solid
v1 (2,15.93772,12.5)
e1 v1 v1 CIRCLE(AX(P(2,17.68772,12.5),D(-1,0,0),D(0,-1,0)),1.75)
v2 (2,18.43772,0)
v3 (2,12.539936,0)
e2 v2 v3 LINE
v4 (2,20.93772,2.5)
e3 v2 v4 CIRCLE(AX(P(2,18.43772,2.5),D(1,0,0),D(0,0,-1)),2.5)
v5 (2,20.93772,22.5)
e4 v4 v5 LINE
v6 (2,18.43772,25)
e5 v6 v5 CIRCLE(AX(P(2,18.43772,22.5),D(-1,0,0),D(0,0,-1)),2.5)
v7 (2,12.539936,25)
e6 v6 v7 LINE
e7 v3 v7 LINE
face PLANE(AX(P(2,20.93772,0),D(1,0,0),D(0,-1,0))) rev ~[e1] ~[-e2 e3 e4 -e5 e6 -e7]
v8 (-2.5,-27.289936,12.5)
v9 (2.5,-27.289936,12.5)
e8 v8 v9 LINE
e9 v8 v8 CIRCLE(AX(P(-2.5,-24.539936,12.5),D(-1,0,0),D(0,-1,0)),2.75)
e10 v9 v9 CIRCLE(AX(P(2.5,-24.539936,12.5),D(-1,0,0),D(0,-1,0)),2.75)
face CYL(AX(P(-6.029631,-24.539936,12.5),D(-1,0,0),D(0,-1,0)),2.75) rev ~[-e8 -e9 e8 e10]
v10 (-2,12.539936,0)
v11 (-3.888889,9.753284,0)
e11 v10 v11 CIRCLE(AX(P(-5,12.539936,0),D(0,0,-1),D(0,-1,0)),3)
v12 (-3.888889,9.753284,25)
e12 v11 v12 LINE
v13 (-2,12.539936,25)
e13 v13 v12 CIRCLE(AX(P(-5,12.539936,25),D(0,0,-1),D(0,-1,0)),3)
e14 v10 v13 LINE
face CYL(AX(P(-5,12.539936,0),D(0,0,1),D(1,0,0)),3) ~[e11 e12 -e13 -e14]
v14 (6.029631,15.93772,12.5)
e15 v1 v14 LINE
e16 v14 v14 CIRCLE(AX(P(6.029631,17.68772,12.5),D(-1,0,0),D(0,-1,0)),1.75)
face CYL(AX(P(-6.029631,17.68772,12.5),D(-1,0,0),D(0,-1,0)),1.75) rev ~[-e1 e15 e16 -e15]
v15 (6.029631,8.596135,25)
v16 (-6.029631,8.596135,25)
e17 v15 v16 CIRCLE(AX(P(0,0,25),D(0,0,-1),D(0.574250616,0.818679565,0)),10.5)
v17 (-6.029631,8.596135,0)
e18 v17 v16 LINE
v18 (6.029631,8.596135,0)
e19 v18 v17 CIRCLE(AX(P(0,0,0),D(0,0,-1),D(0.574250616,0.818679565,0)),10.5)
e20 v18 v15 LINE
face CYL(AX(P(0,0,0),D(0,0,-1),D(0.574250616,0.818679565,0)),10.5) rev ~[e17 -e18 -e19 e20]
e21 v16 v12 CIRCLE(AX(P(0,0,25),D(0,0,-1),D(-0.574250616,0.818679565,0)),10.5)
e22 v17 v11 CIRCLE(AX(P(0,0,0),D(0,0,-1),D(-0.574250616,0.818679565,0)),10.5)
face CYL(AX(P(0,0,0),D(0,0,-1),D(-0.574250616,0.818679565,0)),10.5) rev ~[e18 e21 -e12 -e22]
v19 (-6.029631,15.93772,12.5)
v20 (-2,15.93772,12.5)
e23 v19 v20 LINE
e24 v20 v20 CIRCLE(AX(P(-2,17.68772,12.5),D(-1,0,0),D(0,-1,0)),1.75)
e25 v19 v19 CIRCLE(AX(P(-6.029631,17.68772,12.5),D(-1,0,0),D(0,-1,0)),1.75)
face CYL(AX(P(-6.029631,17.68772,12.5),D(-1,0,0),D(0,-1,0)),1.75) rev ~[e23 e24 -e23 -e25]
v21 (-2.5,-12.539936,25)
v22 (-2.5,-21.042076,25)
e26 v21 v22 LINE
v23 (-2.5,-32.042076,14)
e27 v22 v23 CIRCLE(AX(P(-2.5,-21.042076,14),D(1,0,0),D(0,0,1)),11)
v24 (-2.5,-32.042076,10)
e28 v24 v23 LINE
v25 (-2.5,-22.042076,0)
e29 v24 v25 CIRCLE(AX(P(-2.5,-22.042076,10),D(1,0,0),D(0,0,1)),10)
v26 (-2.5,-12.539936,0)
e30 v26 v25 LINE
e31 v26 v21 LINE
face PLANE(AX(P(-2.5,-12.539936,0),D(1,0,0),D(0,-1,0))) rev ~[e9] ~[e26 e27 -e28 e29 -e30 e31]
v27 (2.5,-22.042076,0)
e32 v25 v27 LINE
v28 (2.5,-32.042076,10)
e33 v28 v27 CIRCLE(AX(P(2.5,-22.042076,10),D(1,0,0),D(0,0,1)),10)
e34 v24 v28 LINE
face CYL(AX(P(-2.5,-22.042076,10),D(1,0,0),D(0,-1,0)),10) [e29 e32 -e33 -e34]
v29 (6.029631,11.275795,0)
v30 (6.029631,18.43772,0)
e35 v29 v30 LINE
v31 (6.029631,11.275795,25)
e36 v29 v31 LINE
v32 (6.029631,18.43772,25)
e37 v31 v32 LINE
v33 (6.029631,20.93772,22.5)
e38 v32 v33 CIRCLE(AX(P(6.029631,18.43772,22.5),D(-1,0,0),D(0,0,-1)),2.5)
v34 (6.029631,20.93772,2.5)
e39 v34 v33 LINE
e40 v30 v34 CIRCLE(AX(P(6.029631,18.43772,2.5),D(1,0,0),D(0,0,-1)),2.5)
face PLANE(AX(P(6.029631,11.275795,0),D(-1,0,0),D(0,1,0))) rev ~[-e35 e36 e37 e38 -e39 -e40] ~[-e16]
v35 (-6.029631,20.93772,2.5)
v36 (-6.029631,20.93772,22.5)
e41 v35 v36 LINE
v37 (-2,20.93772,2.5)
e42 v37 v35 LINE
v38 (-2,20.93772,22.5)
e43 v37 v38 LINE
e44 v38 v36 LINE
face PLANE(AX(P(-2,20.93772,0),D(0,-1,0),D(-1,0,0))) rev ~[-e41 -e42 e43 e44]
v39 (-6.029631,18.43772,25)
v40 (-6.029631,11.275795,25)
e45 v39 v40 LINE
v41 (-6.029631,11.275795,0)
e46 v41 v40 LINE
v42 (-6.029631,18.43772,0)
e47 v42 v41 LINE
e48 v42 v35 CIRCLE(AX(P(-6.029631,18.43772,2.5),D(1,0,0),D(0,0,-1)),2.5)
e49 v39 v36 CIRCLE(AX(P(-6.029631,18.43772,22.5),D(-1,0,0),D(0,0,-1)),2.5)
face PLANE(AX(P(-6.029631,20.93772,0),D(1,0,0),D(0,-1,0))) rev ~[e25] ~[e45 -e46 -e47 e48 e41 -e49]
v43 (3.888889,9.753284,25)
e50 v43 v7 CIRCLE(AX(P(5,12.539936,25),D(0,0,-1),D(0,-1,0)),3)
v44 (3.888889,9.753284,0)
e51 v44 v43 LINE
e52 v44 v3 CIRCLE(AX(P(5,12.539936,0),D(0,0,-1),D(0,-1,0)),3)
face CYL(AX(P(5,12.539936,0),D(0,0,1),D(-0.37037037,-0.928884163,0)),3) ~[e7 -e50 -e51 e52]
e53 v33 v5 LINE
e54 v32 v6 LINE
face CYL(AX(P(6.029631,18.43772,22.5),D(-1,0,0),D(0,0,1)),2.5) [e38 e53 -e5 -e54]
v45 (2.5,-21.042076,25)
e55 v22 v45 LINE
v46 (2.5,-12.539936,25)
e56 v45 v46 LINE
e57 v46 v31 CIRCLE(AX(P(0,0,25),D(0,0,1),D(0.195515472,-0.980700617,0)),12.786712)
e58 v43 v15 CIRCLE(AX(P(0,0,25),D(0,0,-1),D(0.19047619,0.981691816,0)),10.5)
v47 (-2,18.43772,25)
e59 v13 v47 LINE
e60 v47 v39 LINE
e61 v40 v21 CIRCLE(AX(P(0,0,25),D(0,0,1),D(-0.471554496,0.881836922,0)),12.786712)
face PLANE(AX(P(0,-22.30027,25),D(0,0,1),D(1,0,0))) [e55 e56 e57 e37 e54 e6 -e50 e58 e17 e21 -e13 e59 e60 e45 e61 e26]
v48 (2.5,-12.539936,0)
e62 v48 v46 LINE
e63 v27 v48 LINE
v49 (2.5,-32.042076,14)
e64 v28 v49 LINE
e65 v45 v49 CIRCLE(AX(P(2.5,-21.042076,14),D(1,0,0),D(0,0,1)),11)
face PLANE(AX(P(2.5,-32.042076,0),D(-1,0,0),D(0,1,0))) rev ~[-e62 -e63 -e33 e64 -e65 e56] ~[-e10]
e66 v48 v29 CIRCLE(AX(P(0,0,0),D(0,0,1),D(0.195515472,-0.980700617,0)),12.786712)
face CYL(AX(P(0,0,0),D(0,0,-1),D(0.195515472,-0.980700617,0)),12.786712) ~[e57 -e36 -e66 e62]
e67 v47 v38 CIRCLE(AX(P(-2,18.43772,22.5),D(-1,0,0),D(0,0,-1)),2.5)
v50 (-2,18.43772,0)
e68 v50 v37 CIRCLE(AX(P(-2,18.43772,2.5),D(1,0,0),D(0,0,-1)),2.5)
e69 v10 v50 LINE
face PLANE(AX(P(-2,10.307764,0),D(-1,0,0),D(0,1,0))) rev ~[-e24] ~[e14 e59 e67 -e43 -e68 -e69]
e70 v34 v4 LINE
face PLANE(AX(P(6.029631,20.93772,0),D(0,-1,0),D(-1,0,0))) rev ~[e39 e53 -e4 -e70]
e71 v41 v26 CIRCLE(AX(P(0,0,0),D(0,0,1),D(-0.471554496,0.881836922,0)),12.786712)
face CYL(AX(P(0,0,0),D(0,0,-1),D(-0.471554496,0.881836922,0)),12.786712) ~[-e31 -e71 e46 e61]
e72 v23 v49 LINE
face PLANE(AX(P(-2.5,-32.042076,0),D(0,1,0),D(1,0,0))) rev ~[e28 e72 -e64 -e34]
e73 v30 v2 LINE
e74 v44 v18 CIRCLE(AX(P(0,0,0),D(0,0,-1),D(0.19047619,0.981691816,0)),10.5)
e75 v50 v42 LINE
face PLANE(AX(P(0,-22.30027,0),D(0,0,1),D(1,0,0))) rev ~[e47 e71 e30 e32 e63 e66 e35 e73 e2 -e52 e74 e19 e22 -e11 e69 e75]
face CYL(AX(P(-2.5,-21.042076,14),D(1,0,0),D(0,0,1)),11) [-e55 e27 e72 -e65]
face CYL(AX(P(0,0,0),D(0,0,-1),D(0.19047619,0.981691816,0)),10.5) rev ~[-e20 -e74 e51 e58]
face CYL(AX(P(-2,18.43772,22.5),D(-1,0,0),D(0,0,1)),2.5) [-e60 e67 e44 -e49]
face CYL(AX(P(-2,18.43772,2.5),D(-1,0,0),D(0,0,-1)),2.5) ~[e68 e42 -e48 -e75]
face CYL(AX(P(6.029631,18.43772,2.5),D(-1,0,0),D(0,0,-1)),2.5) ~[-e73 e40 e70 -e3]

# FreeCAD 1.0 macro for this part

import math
import FreeCAD as App
import Part
import Sketcher


def edges_at(feature, points):
    """Names of the edges that pass closest to the given points."""
    edges = feature.Shape.Edges
    near = lambda p: min(range(len(edges)), key=lambda i: edges[i].distToShape(Part.Vertex(*p))[0])
    return sorted({f"Edge{near(p) + 1}" for p in points})

doc = App.newDocument("Part")
body = doc.addObject("PartDesign::Body", "Body")

# Sketch on XY plane
sketch1 = body.newObject("Sketcher::SketchObject", "Sketch")
sketch1.AttachmentSupport = (doc.getObject("XY_Plane"), [""])
sketch1.MapMode = "FlatFace"
sketch1.addGeometry([
    Part.LineSegment(App.Vector(-2.5, -12.5, 0), App.Vector(-2.5, -32, 0)),  # 0
    Part.LineSegment(App.Vector(-2.5, -32, 0), App.Vector(2.5, -32, 0)),  # 1
    Part.LineSegment(App.Vector(2.5, -32, 0), App.Vector(2.5, -12.5, 0)),  # 2
    Part.ArcOfCircle(Part.Circle(App.Vector(0, 0, 0), App.Vector(0, 0, 1), 12.8), math.radians(-79), math.radians(62)),  # 3
    Part.LineSegment(App.Vector(6, 11.3, 0), App.Vector(6, 20.9, 0)),  # 4
    Part.LineSegment(App.Vector(6, 20.9, 0), App.Vector(2, 20.9, 0)),  # 5
    Part.LineSegment(App.Vector(2, 20.9, 0), App.Vector(2, 10.3, 0)),  # 6
    Part.ArcOfCircle(Part.Circle(App.Vector(0, 0, 0), App.Vector(0, 0, 1), 10.5), math.radians(55), math.radians(79)),  # 7
    Part.ArcOfCircle(Part.Circle(App.Vector(0, 0, 0), App.Vector(0, 0, 1), 10.5), math.radians(125), math.radians(415)),  # 8
    Part.ArcOfCircle(Part.Circle(App.Vector(0, 0, 0), App.Vector(0, 0, 1), 10.5), math.radians(101), math.radians(125)),  # 9
    Part.LineSegment(App.Vector(-2, 10.3, 0), App.Vector(-2, 20.9, 0)),  # 10
    Part.LineSegment(App.Vector(-2, 20.9, 0), App.Vector(-6, 20.9, 0)),  # 11
    Part.LineSegment(App.Vector(-6, 20.9, 0), App.Vector(-6, 11.3, 0)),  # 12
    Part.ArcOfCircle(Part.Circle(App.Vector(0, 0, 0), App.Vector(0, 0, 1), 12.8), math.radians(118), math.radians(259)),  # 13
], False)
sketch1.addConstraint([
    Sketcher.Constraint("Coincident", 0, 2, 1, 1),
    Sketcher.Constraint("Coincident", 1, 2, 2, 1),
    Sketcher.Constraint("Coincident", 2, 2, 3, 1),
    Sketcher.Constraint("Coincident", 3, 2, 4, 1),
    Sketcher.Constraint("Coincident", 4, 2, 5, 1),
    Sketcher.Constraint("Coincident", 5, 2, 6, 1),
    Sketcher.Constraint("Coincident", 6, 2, 7, 2),
    Sketcher.Constraint("Tangent", 7, 1, 8, 2),
    Sketcher.Constraint("Tangent", 8, 1, 9, 2),
    Sketcher.Constraint("Coincident", 9, 1, 10, 1),
    Sketcher.Constraint("Coincident", 10, 2, 11, 1),
    Sketcher.Constraint("Coincident", 11, 2, 12, 1),
    Sketcher.Constraint("Coincident", 12, 2, 13, 1),
    Sketcher.Constraint("Coincident", 13, 2, 0, 1),
    Sketcher.Constraint("Vertical", 0),
    Sketcher.Constraint("Horizontal", 1),
    Sketcher.Constraint("Vertical", 2),
    Sketcher.Constraint("Vertical", 4),
    Sketcher.Constraint("Horizontal", 5),
    Sketcher.Constraint("Vertical", 6),
    Sketcher.Constraint("Vertical", 10),
    Sketcher.Constraint("Horizontal", 11),
    Sketcher.Constraint("Vertical", 12),
    Sketcher.Constraint("Coincident", 3, 3, -1, 1),
    Sketcher.Constraint("Coincident", 7, 3, -1, 1),
    Sketcher.Constraint("Coincident", 9, 3, -1, 1),
    Sketcher.Constraint("Coincident", 13, 3, -1, 1),
    Sketcher.Constraint("Equal", 3, 13),
    Sketcher.Constraint("Symmetric", 5, 2, 10, 2, -2),
    Sketcher.Constraint("Horizontal", 7, 1, 8, 1),
    Sketcher.Constraint("Horizontal", 3, 2, 12, 2),
    Sketcher.Constraint("Horizontal", 2, 2, 13, 2),
    Sketcher.Constraint("Vertical", 4, 2, 7, 1),
    Sketcher.Constraint("Radius", 7, 10.5),
    Sketcher.Constraint("DistanceX", 1, 1, 1, 2, 5.0),
    Sketcher.Constraint("DistanceX", -1, 1, 5, 2, 2.0),
    Sketcher.Constraint("Radius", 3, 12.786712),
    Sketcher.Constraint("DistanceX", 5, 2, 5, 1, 4.029631),
    Sketcher.Constraint("DistanceY", 0, 2, 0, 1, 19.502139),
    Sketcher.Constraint("DistanceY", 4, 1, 4, 2, 9.661926),
])
pad1 = body.newObject("PartDesign::Pad", "Pad")
pad1.Profile = sketch1
pad1.Length = 25

# Sketch on YZ plane
sketch2 = body.newObject("Sketcher::SketchObject", "Sketch001")
sketch2.AttachmentSupport = (doc.getObject("YZ_Plane"), [""])
sketch2.MapMode = "FlatFace"
sketch2.AttachmentOffset = App.Placement(App.Vector(0, 0, -6.029631), App.Rotation())
sketch2.addGeometry([
    Part.Circle(App.Vector(-24.5, 12.5, 0), App.Vector(0, 0, 1), 2.8),
    Part.Circle(App.Vector(17.7, 12.5, 0), App.Vector(0, 0, 1), 1.8),
], False)
sketch2.addConstraint([
    Sketcher.Constraint("Horizontal", 0, 3, 1, 3),
    Sketcher.Constraint("Diameter", 0, 5.5),
    Sketcher.Constraint("Diameter", 1, 3.5),
    Sketcher.Constraint("DistanceY", -1, 1, 0, 3, 12.5),
    Sketcher.Constraint("DistanceX", -1, 1, 1, 3, 17.68772),
    Sketcher.Constraint("DistanceX", 0, 3, -1, 1, 24.539936),
])
pocket1 = body.newObject("PartDesign::Pocket", "Pocket")
pocket1.Profile = sketch2
pocket1.Length = 50
pocket1.Reversed = True
doc.recompute()

fillet = body.newObject("PartDesign::Fillet", "Fillet")
fillet.Base = (pocket1, edges_at(pocket1, [(0, -32.042, 25)]))
fillet.Radius = 11
doc.recompute()

fillet2 = body.newObject("PartDesign::Fillet", "Fillet001")
fillet2.Base = (fillet, edges_at(fillet, [(0, -32.042, 0)]))
fillet2.Radius = 10
doc.recompute()

fillet3 = body.newObject("PartDesign::Fillet", "Fillet002")
fillet3.Base = (fillet2, edges_at(fillet2, [
    (-4.015, 20.938, 25),
    (4.015, 20.938, 25),
    (4.015, 20.938, 0),
    (-4.015, 20.938, 0),
]))
fillet3.Radius = 2.5
doc.recompute()

fillet4 = body.newObject("PartDesign::Fillet", "Fillet003")
fillet4.Base = (fillet3, edges_at(fillet3, [(-2, 10.308, 12.5), (2, 10.308, 12.5)]))
fillet4.Radius = 3

doc.recompute()
